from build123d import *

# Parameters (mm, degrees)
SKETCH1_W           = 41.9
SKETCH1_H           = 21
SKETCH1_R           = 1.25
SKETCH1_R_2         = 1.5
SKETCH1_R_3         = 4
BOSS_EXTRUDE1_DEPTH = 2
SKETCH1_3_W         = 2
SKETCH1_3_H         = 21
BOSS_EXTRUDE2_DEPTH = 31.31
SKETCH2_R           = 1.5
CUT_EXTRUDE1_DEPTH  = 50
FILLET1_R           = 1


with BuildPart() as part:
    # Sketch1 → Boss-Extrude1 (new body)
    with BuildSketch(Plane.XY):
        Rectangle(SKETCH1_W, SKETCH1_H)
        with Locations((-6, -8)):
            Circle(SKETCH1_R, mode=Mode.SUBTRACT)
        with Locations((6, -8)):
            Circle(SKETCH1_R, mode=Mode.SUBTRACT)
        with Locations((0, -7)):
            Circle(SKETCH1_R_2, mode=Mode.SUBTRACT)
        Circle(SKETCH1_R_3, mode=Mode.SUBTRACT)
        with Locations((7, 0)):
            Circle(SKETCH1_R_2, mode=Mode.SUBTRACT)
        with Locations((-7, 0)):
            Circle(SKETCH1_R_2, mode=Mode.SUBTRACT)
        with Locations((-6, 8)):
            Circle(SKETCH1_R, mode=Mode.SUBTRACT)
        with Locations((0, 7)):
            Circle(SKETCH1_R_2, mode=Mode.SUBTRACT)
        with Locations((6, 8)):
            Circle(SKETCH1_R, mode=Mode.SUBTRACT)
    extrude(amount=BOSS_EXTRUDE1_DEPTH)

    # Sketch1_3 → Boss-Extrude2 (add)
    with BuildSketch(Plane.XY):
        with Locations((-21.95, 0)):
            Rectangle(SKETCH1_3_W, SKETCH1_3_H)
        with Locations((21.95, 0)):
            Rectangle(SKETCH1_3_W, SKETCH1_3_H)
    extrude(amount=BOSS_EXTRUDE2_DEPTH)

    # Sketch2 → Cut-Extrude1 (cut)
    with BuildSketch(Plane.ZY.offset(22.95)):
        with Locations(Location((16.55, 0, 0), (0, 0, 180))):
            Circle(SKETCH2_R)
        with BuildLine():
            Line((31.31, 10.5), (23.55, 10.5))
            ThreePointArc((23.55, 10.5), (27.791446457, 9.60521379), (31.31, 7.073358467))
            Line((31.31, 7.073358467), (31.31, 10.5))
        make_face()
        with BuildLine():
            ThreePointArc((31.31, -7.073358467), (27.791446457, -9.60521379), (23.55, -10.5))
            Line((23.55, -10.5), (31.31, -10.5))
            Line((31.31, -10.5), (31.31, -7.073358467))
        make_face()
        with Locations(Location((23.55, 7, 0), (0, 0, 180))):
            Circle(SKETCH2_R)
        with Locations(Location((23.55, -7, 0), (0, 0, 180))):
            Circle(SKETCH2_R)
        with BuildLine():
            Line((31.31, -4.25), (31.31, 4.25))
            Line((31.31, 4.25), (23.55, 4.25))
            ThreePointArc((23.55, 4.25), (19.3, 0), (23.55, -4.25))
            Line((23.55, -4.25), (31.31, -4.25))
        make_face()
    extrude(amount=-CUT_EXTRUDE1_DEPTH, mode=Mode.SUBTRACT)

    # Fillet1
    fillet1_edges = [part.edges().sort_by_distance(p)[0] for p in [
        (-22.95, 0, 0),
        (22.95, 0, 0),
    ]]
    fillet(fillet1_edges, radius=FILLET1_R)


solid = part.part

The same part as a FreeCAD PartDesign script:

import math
import FreeCAD as App
import Part
import Sketcher
Q = App.Units.Quantity


def edges_at(feature, points):
    """Names of the edges that pass closest to the given points."""
    edges = feature.Shape.Edges
    near = lambda p: min(range(len(edges)), key=lambda i: edges[i].distToShape(Part.Vertex(*p))[0])
    return sorted({f"Edge{near(p) + 1}" for p in points})


def add_polygon(sketch, points):
    """Adds a closed chain of lines whose ends are joined by coincident constraints."""
    first, n = sketch.GeometryCount, len(points)
    for a, b in zip(points, points[1:] + points[:1]):
        sketch.addGeometry(Part.LineSegment(App.Vector(*a, 0), App.Vector(*b, 0)), False)
    for i in range(n):
        sketch.addConstraint(Sketcher.Constraint("Coincident", first + i, 2, first + (i + 1) % n, 1))

doc = App.newDocument("Part")
body = doc.addObject("PartDesign::Body", "Body")

# Sketch on XY plane
sketch1 = body.newObject("Sketcher::SketchObject", "Sketch")
sketch1.AttachmentSupport = (doc.getObject("XY_Plane"), [""])
sketch1.MapMode = "FlatFace"
add_polygon(sketch1, [(-20.9, 10.5), (-20.9, -10.5), (20.9, -10.5), (20.9, 10.5)])  # lines 0-3
sketch1.addGeometry(Part.Circle(App.Vector(-6, -8, 0), App.Vector(0, 0, 1), 1.2), False)  # 4
sketch1.addGeometry(Part.Circle(App.Vector(0, -7, 0), App.Vector(0, 0, 1), 1.5), False)  # 5
sketch1.addGeometry(Part.Circle(App.Vector(6, -8, 0), App.Vector(0, 0, 1), 1.2), False)  # 6
sketch1.addGeometry(Part.Circle(App.Vector(-7, 0, 0), App.Vector(0, 0, 1), 1.5), False)  # 7
sketch1.addGeometry(Part.Circle(App.Vector(-6, 8, 0), App.Vector(0, 0, 1), 1.2), False)  # 8
sketch1.addGeometry(Part.Circle(App.Vector(0, 0, 0), App.Vector(0, 0, 1), 4), False)  # 9
sketch1.addGeometry(Part.Circle(App.Vector(7, 0, 0), App.Vector(0, 0, 1), 1.5), False)  # 10
sketch1.addGeometry(Part.Circle(App.Vector(0, 7, 0), App.Vector(0, 0, 1), 1.5), False)  # 11
sketch1.addGeometry(Part.Circle(App.Vector(6, 8, 0), App.Vector(0, 0, 1), 1.2), False)  # 12
sketch1.addConstraint([
    Sketcher.Constraint("Vertical", 0),
    Sketcher.Constraint("Horizontal", 1),
    Sketcher.Constraint("Vertical", 2),
    Sketcher.Constraint("Horizontal", 3),
    Sketcher.Constraint("Coincident", 9, 3, -1, 1),
    Sketcher.Constraint("Equal", 4, 6),
    Sketcher.Constraint("Equal", 5, 7),
    Sketcher.Constraint("Equal", 6, 8),
    Sketcher.Constraint("Equal", 7, 10),
    Sketcher.Constraint("Equal", 10, 11),
    Sketcher.Constraint("Equal", 8, 12),
    Sketcher.Constraint("Symmetric", 6, 3, 8, 3, -1, 1),
    Sketcher.Constraint("Symmetric", 7, 3, 10, 3, -1, 1),
    Sketcher.Constraint("Symmetric", 5, 3, 11, 3, -1, 1),
    Sketcher.Constraint("Symmetric", 4, 3, 12, 3, -1, 1),
    Sketcher.Constraint("Symmetric", 0, 2, 2, 2, -1, 1),
    Sketcher.Constraint("Symmetric", 4, 3, 6, 3, -2),
    Sketcher.Constraint("PointOnObject", 5, 3, -2),
    Sketcher.Constraint("PointOnObject", 7, 3, -1),
    Sketcher.Constraint("Diameter", 5, Q("3 mm")),
    Sketcher.Constraint("Diameter", 9, Q("8 mm")),
    Sketcher.Constraint("Diameter", 4, Q("2.5 mm")),
    Sketcher.Constraint("DistanceY", 0, 2, 0, 1, Q("21 mm")),
    Sketcher.Constraint("DistanceX", 1, 1, 1, 2, Q("41.9 mm")),
    Sketcher.Constraint("DistanceX", 4, 3, -1, 1, Q("6 mm")),
    Sketcher.Constraint("DistanceY", 4, 3, -1, 1, Q("8 mm")),
    Sketcher.Constraint("DistanceY", 5, 3, -1, 1, Q("7 mm")),
    Sketcher.Constraint("DistanceX", 7, 3, -1, 1, Q("7 mm")),
])
pad1 = body.newObject("PartDesign::Pad", "Pad")
pad1.Profile = sketch1
pad1.Length = 2

# Sketch on XY plane
sketch2 = body.newObject("Sketcher::SketchObject", "Sketch001")
sketch2.AttachmentSupport = (doc.getObject("XY_Plane"), [""])
sketch2.MapMode = "FlatFace"
add_polygon(sketch2, [(-22.9, 10.5), (-22.9, -10.5), (-20.9, -10.5), (-20.9, 10.5)])  # lines 0-3
add_polygon(sketch2, [(20.9, 10.5), (20.9, -10.5), (22.9, -10.5), (22.9, 10.5)])  # lines 4-7
sketch2.addConstraint([
    Sketcher.Constraint("Vertical", 0),
    Sketcher.Constraint("Horizontal", 1),
    Sketcher.Constraint("Vertical", 2),
    Sketcher.Constraint("Horizontal", 3),
    Sketcher.Constraint("Vertical", 4),
    Sketcher.Constraint("Horizontal", 5),
    Sketcher.Constraint("Vertical", 6),
    Sketcher.Constraint("Horizontal", 7),
    Sketcher.Constraint("Symmetric", 2, 2, 4, 2, -1, 1),
    Sketcher.Constraint("Symmetric", 0, 2, 6, 2, -1, 1),
    Sketcher.Constraint("Horizontal", 1, 2, 4, 2),
    Sketcher.Constraint("DistanceX", 1, 1, 1, 2, Q("2 mm")),
    Sketcher.Constraint("DistanceY", 0, 2, 0, 1, Q("21 mm")),
    Sketcher.Constraint("DistanceX", 1, 2, 4, 2, Q("41.9 mm")),
])
pad2 = body.newObject("PartDesign::Pad", "Pad001")
pad2.Profile = sketch2
pad2.Length = 31.31

# Sketch on YZ plane
sketch3 = body.newObject("Sketcher::SketchObject", "Sketch002")
sketch3.AttachmentSupport = (doc.getObject("YZ_Plane"), [""])
sketch3.MapMode = "FlatFace"
sketch3.AttachmentOffset = App.Placement(App.Vector(0, 0, -22.95), App.Rotation())
sketch3.addGeometry([
    Part.Circle(App.Vector(0, 16.6, 0), App.Vector(0, 0, 1), 1.5),  # 0
    Part.LineSegment(App.Vector(10.5, 31.3, 0), App.Vector(10.5, 23.6, 0)),  # 1
    Part.ArcOfCircle(Part.Circle(App.Vector(0, 23.6, 0), App.Vector(0, 0, 1), 10.5), math.radians(0), math.radians(48)),  # 2
    Part.LineSegment(App.Vector(7.1, 31.3, 0), App.Vector(10.5, 31.3, 0)),  # 3
    Part.ArcOfCircle(Part.Circle(App.Vector(0, 23.6, 0), App.Vector(0, 0, 1), 10.5), math.radians(132), math.radians(180)),  # 4
    Part.LineSegment(App.Vector(-10.5, 23.6, 0), App.Vector(-10.5, 31.3, 0)),  # 5
    Part.LineSegment(App.Vector(-10.5, 31.3, 0), App.Vector(-7.1, 31.3, 0)),  # 6
    Part.Circle(App.Vector(7, 23.6, 0), App.Vector(0, 0, 1), 1.5),  # 7
    Part.Circle(App.Vector(-7, 23.6, 0), App.Vector(0, 0, 1), 1.5),  # 8
    Part.LineSegment(App.Vector(-4.2, 31.3, 0), App.Vector(4.2, 31.3, 0)),  # 9
    Part.LineSegment(App.Vector(4.2, 31.3, 0), App.Vector(4.2, 23.6, 0)),  # 10
    Part.ArcOfCircle(Part.Circle(App.Vector(0, 23.6, 0), App.Vector(0, 0, 1), 4.2), math.radians(180), math.radians(360)),  # 11
    Part.LineSegment(App.Vector(-4.2, 23.6, 0), App.Vector(-4.2, 31.3, 0)),  # 12
], False)
sketch3.addConstraint([
    Sketcher.Constraint("Tangent", 1, 2, 2, 1),
    Sketcher.Constraint("Coincident", 2, 2, 3, 1),
    Sketcher.Constraint("Coincident", 3, 2, 1, 1),
    Sketcher.Constraint("Tangent", 4, 2, 5, 1),
    Sketcher.Constraint("Coincident", 5, 2, 6, 1),
    Sketcher.Constraint("Coincident", 6, 2, 4, 1),
    Sketcher.Constraint("Coincident", 9, 2, 10, 1),
    Sketcher.Constraint("Tangent", 10, 2, 11, 2),
    Sketcher.Constraint("Tangent", 11, 1, 12, 1),
    Sketcher.Constraint("Coincident", 12, 2, 9, 1),
    Sketcher.Constraint("Vertical", 1),
    Sketcher.Constraint("Horizontal", 3),
    Sketcher.Constraint("Vertical", 5),
    Sketcher.Constraint("Horizontal", 6),
    Sketcher.Constraint("Horizontal", 9),
    Sketcher.Constraint("Vertical", 10),
    Sketcher.Constraint("Vertical", 12),
    Sketcher.Constraint("Coincident", 4, 3, 2, 3),
    Sketcher.Constraint("Coincident", 11, 3, 2, 3),
    Sketcher.Constraint("Equal", 2, 4),
    Sketcher.Constraint("Equal", 0, 7),
    Sketcher.Constraint("Equal", 7, 8),
    Sketcher.Constraint("Symmetric", 7, 3, 8, 3, -2),
    Sketcher.Constraint("Symmetric", 3, 2, 5, 2, -2),
    Sketcher.Constraint("PointOnObject", 0, 3, -2),
    Sketcher.Constraint("Horizontal", 4, 3, 7, 3),
    Sketcher.Constraint("Horizontal", 6, 2, 9, 2),
    Sketcher.Constraint("Diameter", 0, Q("3 mm")),
    Sketcher.Constraint("Radius", 2, Q("10.5 mm")),
    Sketcher.Constraint("Radius", 11, Q("4.25 mm")),
    Sketcher.Constraint("DistanceX", -1, 1, 7, 3, Q("7 mm")),
    Sketcher.Constraint("DistanceY", 0, 3, 2, 3, Q("7 mm")),
    Sketcher.Constraint("DistanceY", 1, 2, 1, 1, Q("7.76 mm")),
    Sketcher.Constraint("DistanceY", -1, 1, 0, 3, Q("16.55 mm")),
])
pocket1 = body.newObject("PartDesign::Pocket", "Pocket")
pocket1.Profile = sketch3
pocket1.Length = 50
pocket1.Reversed = True
doc.recompute()

fillet = body.newObject("PartDesign::Fillet", "Fillet")
fillet.Base = (pocket1, edges_at(pocket1, [(-22.95, 0, 0), (22.95, 0, 0)]))
fillet.Radius = 1

doc.recompute()
